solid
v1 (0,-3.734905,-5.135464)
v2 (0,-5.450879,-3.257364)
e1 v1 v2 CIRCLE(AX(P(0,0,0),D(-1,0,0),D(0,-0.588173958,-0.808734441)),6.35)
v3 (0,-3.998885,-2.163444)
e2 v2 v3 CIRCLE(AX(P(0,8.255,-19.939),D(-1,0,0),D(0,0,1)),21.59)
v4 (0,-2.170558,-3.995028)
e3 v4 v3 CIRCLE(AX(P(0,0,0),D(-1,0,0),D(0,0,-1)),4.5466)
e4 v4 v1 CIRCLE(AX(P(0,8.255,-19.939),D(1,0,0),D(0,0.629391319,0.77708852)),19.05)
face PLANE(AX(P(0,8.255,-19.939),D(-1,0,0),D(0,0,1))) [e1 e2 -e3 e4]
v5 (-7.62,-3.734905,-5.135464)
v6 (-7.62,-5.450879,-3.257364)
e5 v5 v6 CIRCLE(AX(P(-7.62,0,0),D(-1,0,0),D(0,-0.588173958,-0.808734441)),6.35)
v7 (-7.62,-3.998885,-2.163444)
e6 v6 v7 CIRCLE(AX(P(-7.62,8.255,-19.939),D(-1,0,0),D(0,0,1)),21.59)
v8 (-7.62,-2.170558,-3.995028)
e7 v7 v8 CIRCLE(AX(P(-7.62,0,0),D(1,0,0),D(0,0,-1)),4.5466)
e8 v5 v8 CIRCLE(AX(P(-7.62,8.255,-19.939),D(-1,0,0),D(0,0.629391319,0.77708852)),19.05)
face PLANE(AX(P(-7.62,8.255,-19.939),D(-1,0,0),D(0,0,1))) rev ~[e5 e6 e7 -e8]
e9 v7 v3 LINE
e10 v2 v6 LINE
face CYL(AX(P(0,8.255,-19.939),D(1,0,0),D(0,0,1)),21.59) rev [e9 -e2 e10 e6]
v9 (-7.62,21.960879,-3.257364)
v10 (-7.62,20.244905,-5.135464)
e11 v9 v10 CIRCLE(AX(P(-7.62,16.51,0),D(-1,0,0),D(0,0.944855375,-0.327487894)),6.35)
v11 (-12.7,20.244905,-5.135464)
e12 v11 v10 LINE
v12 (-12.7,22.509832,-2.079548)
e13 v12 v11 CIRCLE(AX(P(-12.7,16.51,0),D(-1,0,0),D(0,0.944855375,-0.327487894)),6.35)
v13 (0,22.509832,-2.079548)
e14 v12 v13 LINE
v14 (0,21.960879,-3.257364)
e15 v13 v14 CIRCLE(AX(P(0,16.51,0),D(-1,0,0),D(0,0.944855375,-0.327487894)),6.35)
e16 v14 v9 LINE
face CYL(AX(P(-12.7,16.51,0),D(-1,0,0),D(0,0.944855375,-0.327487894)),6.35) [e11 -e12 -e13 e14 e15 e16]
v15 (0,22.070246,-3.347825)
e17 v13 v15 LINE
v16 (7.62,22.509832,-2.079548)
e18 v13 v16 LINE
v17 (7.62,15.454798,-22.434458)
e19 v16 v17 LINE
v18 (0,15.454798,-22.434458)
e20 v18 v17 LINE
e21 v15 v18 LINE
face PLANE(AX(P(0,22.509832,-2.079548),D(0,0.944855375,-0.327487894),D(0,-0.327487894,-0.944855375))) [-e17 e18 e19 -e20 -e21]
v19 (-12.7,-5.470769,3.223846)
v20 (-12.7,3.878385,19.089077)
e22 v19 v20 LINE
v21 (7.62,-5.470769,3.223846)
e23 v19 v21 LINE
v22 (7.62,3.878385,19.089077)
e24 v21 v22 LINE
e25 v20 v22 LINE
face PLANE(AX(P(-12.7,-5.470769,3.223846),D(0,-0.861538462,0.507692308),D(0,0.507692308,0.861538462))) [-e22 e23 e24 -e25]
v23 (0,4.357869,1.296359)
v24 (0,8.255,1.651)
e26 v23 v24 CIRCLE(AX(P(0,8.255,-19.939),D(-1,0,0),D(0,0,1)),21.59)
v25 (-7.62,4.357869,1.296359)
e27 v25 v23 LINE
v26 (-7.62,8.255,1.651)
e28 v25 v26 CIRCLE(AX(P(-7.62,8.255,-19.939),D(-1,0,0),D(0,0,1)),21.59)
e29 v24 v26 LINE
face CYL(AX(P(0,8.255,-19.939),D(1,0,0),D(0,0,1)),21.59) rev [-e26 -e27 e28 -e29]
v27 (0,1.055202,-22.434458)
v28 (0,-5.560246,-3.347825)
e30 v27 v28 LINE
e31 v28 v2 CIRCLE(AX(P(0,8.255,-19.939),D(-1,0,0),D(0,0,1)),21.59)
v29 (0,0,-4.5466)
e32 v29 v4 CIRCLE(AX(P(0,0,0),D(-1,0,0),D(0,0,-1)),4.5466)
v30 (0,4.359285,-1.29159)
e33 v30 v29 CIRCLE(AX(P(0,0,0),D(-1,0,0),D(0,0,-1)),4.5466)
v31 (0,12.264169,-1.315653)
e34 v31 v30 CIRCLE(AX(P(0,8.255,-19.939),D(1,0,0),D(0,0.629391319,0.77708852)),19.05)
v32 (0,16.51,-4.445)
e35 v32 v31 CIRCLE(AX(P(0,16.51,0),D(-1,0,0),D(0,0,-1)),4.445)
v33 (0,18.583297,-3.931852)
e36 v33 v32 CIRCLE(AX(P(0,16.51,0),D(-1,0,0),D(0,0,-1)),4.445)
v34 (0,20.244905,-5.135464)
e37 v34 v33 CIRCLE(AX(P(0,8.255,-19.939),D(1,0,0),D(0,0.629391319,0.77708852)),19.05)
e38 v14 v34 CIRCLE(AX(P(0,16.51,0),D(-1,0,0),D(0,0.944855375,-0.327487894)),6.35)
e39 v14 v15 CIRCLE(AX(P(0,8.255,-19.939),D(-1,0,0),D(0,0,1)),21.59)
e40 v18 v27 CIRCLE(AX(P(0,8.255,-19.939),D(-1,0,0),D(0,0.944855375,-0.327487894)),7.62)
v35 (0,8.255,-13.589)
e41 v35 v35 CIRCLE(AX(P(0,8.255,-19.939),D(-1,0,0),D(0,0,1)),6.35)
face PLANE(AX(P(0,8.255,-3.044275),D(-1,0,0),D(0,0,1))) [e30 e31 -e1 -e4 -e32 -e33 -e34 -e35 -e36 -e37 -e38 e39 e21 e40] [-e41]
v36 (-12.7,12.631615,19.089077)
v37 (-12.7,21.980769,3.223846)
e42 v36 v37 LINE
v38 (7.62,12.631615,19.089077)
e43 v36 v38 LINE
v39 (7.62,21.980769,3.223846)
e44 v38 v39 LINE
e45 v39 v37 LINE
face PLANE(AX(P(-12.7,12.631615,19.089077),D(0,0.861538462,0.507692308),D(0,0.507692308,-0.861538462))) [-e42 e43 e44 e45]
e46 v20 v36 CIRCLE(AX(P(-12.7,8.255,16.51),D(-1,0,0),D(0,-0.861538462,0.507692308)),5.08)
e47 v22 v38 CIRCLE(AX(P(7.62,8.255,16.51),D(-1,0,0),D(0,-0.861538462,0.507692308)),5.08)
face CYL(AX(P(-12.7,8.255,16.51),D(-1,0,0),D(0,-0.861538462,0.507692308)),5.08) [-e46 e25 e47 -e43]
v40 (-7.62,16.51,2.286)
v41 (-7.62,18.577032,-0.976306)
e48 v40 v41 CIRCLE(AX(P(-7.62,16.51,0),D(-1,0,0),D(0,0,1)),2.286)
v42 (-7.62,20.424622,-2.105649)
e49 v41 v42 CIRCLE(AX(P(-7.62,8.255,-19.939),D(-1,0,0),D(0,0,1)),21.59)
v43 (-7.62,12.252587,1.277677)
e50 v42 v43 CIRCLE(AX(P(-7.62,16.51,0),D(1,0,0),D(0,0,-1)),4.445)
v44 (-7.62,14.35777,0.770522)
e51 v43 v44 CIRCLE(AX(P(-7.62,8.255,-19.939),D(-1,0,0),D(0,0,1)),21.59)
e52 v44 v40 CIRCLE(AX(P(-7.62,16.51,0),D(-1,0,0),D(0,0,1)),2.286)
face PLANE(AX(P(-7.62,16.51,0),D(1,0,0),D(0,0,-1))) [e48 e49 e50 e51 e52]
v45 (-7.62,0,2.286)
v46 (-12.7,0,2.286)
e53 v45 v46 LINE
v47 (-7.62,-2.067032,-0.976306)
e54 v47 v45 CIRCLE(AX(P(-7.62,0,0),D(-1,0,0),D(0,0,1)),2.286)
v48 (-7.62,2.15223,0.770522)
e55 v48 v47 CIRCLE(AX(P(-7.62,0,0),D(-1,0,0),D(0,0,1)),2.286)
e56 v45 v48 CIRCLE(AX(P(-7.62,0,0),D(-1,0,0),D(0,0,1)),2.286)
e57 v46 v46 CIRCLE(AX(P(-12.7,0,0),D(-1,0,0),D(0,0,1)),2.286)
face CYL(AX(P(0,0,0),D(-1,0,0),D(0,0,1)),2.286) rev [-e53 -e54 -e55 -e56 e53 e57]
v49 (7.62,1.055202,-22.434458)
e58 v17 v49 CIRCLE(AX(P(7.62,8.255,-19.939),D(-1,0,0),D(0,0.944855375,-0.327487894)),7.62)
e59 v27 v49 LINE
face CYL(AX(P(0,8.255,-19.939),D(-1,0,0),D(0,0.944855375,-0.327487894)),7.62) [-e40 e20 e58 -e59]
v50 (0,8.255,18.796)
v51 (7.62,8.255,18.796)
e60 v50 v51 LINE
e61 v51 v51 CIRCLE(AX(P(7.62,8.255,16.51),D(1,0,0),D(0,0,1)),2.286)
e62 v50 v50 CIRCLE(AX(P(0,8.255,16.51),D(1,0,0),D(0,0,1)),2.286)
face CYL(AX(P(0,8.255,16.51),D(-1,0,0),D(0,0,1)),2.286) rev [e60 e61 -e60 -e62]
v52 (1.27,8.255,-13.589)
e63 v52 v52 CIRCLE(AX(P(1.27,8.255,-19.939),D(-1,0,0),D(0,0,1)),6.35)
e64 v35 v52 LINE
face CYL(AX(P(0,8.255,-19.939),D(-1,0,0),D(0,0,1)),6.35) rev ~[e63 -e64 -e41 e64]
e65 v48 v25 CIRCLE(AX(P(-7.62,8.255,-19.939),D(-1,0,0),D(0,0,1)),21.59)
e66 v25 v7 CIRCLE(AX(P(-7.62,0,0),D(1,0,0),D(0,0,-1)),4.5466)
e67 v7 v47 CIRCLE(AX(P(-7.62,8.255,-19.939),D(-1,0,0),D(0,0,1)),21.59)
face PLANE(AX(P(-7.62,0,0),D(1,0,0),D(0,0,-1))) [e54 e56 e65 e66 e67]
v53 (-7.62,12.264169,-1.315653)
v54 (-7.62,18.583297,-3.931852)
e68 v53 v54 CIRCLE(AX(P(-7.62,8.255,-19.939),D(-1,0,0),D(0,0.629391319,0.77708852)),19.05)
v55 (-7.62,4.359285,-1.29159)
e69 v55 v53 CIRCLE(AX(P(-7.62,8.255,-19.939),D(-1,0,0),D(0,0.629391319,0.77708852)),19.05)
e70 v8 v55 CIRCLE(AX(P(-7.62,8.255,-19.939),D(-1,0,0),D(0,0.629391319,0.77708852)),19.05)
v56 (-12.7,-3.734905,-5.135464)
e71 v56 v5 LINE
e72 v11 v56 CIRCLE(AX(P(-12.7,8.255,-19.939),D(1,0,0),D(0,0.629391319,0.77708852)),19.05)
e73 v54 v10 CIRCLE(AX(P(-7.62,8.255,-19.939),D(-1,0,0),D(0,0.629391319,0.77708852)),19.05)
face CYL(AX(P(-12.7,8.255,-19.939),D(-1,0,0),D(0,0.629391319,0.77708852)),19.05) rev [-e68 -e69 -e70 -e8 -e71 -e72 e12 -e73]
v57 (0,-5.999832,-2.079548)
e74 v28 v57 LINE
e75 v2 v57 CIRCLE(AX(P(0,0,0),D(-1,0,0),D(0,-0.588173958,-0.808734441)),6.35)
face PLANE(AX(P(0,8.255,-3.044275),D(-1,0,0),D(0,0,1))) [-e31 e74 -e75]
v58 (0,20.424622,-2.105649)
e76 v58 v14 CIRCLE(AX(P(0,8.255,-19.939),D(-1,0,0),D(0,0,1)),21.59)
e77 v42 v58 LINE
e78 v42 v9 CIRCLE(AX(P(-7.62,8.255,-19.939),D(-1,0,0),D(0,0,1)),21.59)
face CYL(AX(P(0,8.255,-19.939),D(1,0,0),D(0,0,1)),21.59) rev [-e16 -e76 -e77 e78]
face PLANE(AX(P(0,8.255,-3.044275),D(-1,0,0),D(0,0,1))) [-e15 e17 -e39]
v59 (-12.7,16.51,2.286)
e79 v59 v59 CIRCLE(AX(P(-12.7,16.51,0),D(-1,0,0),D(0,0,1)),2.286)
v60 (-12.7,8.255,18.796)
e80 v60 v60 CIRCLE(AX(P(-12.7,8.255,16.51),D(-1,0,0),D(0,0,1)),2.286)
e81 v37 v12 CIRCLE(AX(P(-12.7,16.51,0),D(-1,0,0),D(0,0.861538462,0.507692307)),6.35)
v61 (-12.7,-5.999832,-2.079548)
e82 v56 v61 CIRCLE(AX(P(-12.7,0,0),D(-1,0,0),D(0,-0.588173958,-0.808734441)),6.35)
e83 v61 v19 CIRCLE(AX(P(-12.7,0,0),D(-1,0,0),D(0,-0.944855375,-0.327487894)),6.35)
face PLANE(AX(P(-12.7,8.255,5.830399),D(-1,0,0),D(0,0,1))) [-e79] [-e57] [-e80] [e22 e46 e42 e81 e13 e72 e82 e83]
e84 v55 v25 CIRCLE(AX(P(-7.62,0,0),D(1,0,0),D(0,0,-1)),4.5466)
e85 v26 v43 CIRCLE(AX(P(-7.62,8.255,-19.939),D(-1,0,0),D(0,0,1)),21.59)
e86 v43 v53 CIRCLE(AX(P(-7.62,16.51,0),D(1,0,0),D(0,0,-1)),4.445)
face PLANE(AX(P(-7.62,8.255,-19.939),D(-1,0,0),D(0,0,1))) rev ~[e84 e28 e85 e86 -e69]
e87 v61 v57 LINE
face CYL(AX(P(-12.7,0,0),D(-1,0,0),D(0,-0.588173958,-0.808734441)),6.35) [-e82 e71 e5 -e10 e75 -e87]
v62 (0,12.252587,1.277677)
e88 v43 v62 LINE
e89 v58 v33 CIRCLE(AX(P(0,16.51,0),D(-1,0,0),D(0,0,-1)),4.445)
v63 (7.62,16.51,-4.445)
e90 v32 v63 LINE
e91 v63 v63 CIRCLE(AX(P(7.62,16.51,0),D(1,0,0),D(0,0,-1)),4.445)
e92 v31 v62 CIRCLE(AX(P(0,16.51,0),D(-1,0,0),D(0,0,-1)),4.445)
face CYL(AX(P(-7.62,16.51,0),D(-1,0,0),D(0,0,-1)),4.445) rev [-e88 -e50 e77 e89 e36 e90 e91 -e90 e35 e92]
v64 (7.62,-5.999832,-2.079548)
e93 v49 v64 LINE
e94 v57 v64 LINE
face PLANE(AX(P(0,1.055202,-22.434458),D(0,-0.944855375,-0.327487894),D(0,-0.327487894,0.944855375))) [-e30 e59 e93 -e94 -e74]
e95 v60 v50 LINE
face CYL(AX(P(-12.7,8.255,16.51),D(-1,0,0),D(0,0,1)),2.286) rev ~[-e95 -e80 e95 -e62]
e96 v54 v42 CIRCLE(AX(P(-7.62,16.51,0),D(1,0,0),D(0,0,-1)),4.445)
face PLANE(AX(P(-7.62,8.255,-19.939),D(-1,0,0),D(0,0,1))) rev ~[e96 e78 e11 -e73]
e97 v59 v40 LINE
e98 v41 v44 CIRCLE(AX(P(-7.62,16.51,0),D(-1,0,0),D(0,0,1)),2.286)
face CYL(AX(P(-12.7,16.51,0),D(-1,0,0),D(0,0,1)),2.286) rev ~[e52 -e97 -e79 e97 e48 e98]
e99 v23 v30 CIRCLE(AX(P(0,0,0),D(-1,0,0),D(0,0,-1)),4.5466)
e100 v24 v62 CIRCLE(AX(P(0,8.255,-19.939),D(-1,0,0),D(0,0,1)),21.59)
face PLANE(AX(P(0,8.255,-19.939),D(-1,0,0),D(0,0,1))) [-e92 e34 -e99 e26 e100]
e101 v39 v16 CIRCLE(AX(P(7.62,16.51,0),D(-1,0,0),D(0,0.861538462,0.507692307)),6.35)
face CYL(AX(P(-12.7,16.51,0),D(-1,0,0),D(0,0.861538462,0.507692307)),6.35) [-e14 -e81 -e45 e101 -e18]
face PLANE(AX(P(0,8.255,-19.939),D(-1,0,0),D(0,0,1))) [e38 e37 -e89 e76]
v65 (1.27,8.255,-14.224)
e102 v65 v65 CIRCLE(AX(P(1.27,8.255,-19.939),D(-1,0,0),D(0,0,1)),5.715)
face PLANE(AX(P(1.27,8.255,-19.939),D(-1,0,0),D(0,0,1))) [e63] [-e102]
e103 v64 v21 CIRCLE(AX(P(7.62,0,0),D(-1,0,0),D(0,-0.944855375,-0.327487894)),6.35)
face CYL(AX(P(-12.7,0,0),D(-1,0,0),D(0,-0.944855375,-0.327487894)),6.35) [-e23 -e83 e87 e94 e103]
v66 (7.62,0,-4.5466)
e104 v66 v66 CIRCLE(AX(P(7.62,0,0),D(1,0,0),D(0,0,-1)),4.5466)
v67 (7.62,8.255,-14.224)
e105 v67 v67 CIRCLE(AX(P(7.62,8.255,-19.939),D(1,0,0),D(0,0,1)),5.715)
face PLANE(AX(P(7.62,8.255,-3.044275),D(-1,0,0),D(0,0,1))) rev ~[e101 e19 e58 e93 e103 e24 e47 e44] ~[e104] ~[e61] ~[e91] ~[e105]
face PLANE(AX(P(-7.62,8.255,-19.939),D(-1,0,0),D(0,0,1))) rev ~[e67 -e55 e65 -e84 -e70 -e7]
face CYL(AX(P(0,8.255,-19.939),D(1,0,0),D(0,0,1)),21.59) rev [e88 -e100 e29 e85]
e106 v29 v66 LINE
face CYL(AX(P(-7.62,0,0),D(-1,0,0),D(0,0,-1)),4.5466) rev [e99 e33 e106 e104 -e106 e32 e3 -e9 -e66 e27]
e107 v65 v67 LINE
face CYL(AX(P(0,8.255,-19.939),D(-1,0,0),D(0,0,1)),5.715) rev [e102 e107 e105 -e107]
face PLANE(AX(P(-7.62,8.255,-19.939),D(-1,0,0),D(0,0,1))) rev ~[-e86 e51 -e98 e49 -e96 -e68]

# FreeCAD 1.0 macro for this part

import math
import FreeCAD as App
import Part
import Sketcher
Q = App.Units.Quantity

doc = App.newDocument("Part")
body = doc.addObject("PartDesign::Body", "Body")

sketch1 = doc.addObject("Sketcher::SketchObject", "Sketch")
body.addObject(sketch1)
sketch1.AttachmentSupport = (doc.YZ_Plane, [""])
sketch1.MapMode = "FlatFace"
sketch1.addGeometry([
    Part.LineSegment(App.Vector(15.454798, -22.434458, 0), App.Vector(22.509832, -2.079548, 0)),
    Part.ArcOfCircle(Part.Circle(App.Vector(16.51, 0, 0), App.Vector(0, 0, 1), 6.35), math.radians(-19.116372), math.radians(30.510237)),
    Part.LineSegment(App.Vector(21.980769, 3.223846, 0), App.Vector(12.631615, 19.089077, 0)),
    Part.ArcOfCircle(Part.Circle(App.Vector(8.255, 16.51, 0), App.Vector(0, 0, 1), 5.08), math.radians(30.510237), math.radians(149.489763)),
    Part.LineSegment(App.Vector(3.878385, 19.089077, 0), App.Vector(-5.470769, 3.223846, 0)),
    Part.ArcOfCircle(Part.Circle(App.Vector(0, 0, 0), App.Vector(0, 0, 1), 6.35), math.radians(149.489763), math.radians(199.116372)),
    Part.LineSegment(App.Vector(-5.999832, -2.079548, 0), App.Vector(1.055202, -22.434458, 0)),
    Part.ArcOfCircle(Part.Circle(App.Vector(8.255, -19.939, 0), App.Vector(0, 0, 1), 7.62), math.radians(-160.883628), math.radians(-19.116372)),
    Part.Circle(App.Vector(0, 0, 0), App.Vector(0, 0, 1), 2.286),
    Part.Circle(App.Vector(8.255, -19.939, 0), App.Vector(0, 0, 1), 5.715),
    Part.Circle(App.Vector(8.255, 16.51, 0), App.Vector(0, 0, 1), 2.286),
    Part.Circle(App.Vector(16.51, 0, 0), App.Vector(0, 0, 1), 2.286),
], False)
sketch1.addConstraint([
    Sketcher.Constraint("Tangent", 0, 2, 1, 1),
    Sketcher.Constraint("Tangent", 1, 2, 2, 1),
    Sketcher.Constraint("Tangent", 2, 2, 3, 1),
    Sketcher.Constraint("Tangent", 3, 2, 4, 1),
    Sketcher.Constraint("Tangent", 4, 2, 5, 1),
    Sketcher.Constraint("Tangent", 5, 2, 6, 1),
    Sketcher.Constraint("Tangent", 6, 2, 7, 1),
    Sketcher.Constraint("Tangent", 7, 2, 0, 1),
    Sketcher.Constraint("Coincident", 5, 3, -1, 1),
    Sketcher.Constraint("Coincident", 8, 3, -1, 1),
    Sketcher.Constraint("Coincident", 9, 3, 7, 3),
    Sketcher.Constraint("Coincident", 10, 3, 3, 3),
    Sketcher.Constraint("Coincident", 11, 3, 1, 3),
    Sketcher.Constraint("Equal", 1, 5),
    Sketcher.Constraint("Equal", 8, 10),
    Sketcher.Constraint("Equal", 10, 11),
    Sketcher.Constraint("PointOnObject", 1, 3, -1),
    Sketcher.Constraint("Horizontal", 2, 2, 3, 2),
    Sketcher.Constraint("Horizontal", 0, 2, 5, 2),
    Sketcher.Constraint("Radius", 3, Q("0.2 in")),
    Sketcher.Constraint("Radius", 7, Q("0.3 in")),
    Sketcher.Constraint("Diameter", 8, Q("0.18 in")),
    Sketcher.Constraint("Diameter", 9, Q("0.45 in")),
    Sketcher.Constraint("Radius", 1, Q("0.25 in")),
    Sketcher.Constraint("DistanceX", -1, 1, 1, 3, Q("0.65 in")),
    Sketcher.Constraint("DistanceY", -1, 1, 3, 3, Q("0.65 in")),
    Sketcher.Constraint("DistanceY", 7, 3, -1, 1, Q("0.785 in")),
])
pad1 = doc.addObject("PartDesign::Pad", "Pad")
body.addObject(pad1)
pad1.Profile = sketch1
pad1.Length = Q("0.3 in")

sketch2 = doc.addObject("Sketcher::SketchObject", "Sketch001")
body.addObject(sketch2)
sketch2.AttachmentSupport = (doc.YZ_Plane, [""])
sketch2.MapMode = "FlatFace"
sketch2.AttachmentOffset = App.Placement(App.Vector(0, 0, -0.5 * 25.4), App.Rotation())
sketch2.addGeometry([
    Part.LineSegment(App.Vector(12.631615, 19.089077, 0), App.Vector(21.980769, 3.223846, 0)),
    Part.ArcOfCircle(Part.Circle(App.Vector(16.51, 0, 0), App.Vector(0, 0, 1), 6.35), math.radians(-19.116372), math.radians(30.510237)),
    Part.ArcOfCircle(Part.Circle(App.Vector(16.51, 0, 0), App.Vector(0, 0, 1), 6.35), math.radians(-53.972467), math.radians(-19.116372)),
    Part.ArcOfCircle(Part.Circle(App.Vector(8.255, -19.939, 0), App.Vector(0, 0, 1), 19.05), math.radians(50.994771), math.radians(129.005229)),
    Part.ArcOfCircle(Part.Circle(App.Vector(0, 0, 0), App.Vector(0, 0, 1), 6.35), math.radians(-160.883628), math.radians(-126.027533)),
    Part.ArcOfCircle(Part.Circle(App.Vector(0, 0, 0), App.Vector(0, 0, 1), 6.35), math.radians(149.489763), math.radians(199.116372)),
    Part.LineSegment(App.Vector(-5.470769, 3.223846, 0), App.Vector(3.878385, 19.089077, 0)),
    Part.ArcOfCircle(Part.Circle(App.Vector(8.255, 16.51, 0), App.Vector(0, 0, 1), 5.08), math.radians(30.510237), math.radians(149.489763)),
    Part.Circle(App.Vector(0, 0, 0), App.Vector(0, 0, 1), 2.286),
    Part.Circle(App.Vector(16.51, 0, 0), App.Vector(0, 0, 1), 2.286),
    Part.Circle(App.Vector(8.255, 16.51, 0), App.Vector(0, 0, 1), 2.286),
], False)
sketch2.addConstraint([
    Sketcher.Constraint("Tangent", 0, 2, 1, 2),
    Sketcher.Constraint("Tangent", 1, 1, 2, 2),
    Sketcher.Constraint("Coincident", 2, 1, 3, 1),
    Sketcher.Constraint("Coincident", 3, 2, 4, 2),
    Sketcher.Constraint("Tangent", 4, 1, 5, 2),
    Sketcher.Constraint("Tangent", 5, 1, 6, 1),
    Sketcher.Constraint("Tangent", 6, 2, 7, 2),
    Sketcher.Constraint("Tangent", 7, 1, 0, 1),
    Sketcher.Constraint("Coincident", 4, 3, -1, 1),
    Sketcher.Constraint("Coincident", 8, 3, -1, 1),
    Sketcher.Constraint("Coincident", 9, 3, 1, 3),
    Sketcher.Constraint("Coincident", 10, 3, 7, 3),
    Sketcher.Constraint("Equal", 1, 2),
    Sketcher.Constraint("Equal", 2, 4),
    Sketcher.Constraint("Equal", 4, 5),
    Sketcher.Constraint("Equal", 8, 9),
    Sketcher.Constraint("Equal", 9, 10),
    Sketcher.Constraint("PointOnObject", 1, 3, -1),
    Sketcher.Constraint("Horizontal", 2, 1, 3, 2),
    Sketcher.Constraint("Horizontal", 1, 1, 4, 1),
    Sketcher.Constraint("Horizontal", 0, 2, 5, 1),
    Sketcher.Constraint("Radius", 7, Q("0.2 in")),
    Sketcher.Constraint("Diameter", 8, Q("0.18 in")),
    Sketcher.Constraint("Radius", 1, Q("0.25 in")),
    Sketcher.Constraint("Radius", 3, Q("0.75 in")),
    Sketcher.Constraint("DistanceX", -1, 1, 1, 3, Q("0.65 in")),
    Sketcher.Constraint("DistanceY", -1, 1, 7, 3, Q("0.65 in")),
    Sketcher.Constraint("DistanceY", 3, 3, -1, 1, Q("0.785 in")),
    Sketcher.Constraint("DistanceX", -1, 1, 1, 1, Q("22.509832 mm")),
])
pad2 = doc.addObject("PartDesign::Pad", "Pad001")
body.addObject(pad2)
pad2.Profile = sketch2
pad2.Length = Q("0.5 in")

sketch3 = doc.addObject("Sketcher::SketchObject", "Sketch002")
body.addObject(sketch3)
sketch3.AttachmentSupport = (doc.YZ_Plane, [""])
sketch3.MapMode = "FlatFace"
sketch3.addGeometry(Part.Circle(App.Vector(8.255, -19.939, 0), App.Vector(0, 0, 1), 6.35), False)
sketch3.addConstraint([
    Sketcher.Constraint("Diameter", 0, Q("0.5 in")),
    Sketcher.Constraint("DistanceX", -1, 1, 0, 3, Q("0.325 in")),
    Sketcher.Constraint("DistanceY", 0, 3, -1, 1, Q("0.785 in")),
])
pocket1 = doc.addObject("PartDesign::Pocket", "Pocket")
body.addObject(pocket1)
pocket1.Profile = sketch3
pocket1.Length = Q("0.05 in")
pocket1.Reversed = True

sketch4 = doc.addObject("Sketcher::SketchObject", "Sketch003")
body.addObject(sketch4)
sketch4.AttachmentSupport = (doc.YZ_Plane, [""])
sketch4.MapMode = "FlatFace"
sketch4.addGeometry(Part.Circle(App.Vector(8.255, -19.939, 0), App.Vector(0, 0, 1), 21.59), False)
sketch4.addConstraint([
    Sketcher.Constraint("Diameter", 0, Q("1.7 in")),
    Sketcher.Constraint("DistanceX", -1, 1, 0, 3, Q("0.325 in")),
    Sketcher.Constraint("DistanceY", 0, 3, -1, 1, Q("0.785 in")),
])
pocket2 = doc.addObject("PartDesign::Pocket", "Pocket001")
body.addObject(pocket2)
pocket2.Profile = sketch4
pocket2.Length = Q("0.3 in")

sketch5 = doc.addObject("Sketcher::SketchObject", "Sketch004")
body.addObject(sketch5)
sketch5.AttachmentSupport = (doc.YZ_Plane, [""])
sketch5.MapMode = "FlatFace"
sketch5.AttachmentOffset = App.Placement(App.Vector(0, 0, -0.3 * 25.4), App.Rotation())
sketch5.addGeometry([
    Part.Circle(App.Vector(0, 0, 0), App.Vector(0, 0, 1), 4.5466),
    Part.Circle(App.Vector(16.51, 0, 0), App.Vector(0, 0, 1), 4.445),
], False)
sketch5.addConstraint([
    Sketcher.Constraint("Coincident", 0, 3, -1, 1),
    Sketcher.Constraint("PointOnObject", 1, 3, -1),
    Sketcher.Constraint("Diameter", 1, Q("0.35 in")),
    Sketcher.Constraint("Diameter", 0, Q("0.358 in")),
    Sketcher.Constraint("DistanceX", -1, 1, 1, 3, Q("0.65 in")),
])
pocket3 = doc.addObject("PartDesign::Pocket", "Pocket002")
body.addObject(pocket3)
pocket3.Profile = sketch5
pocket3.Length = Q("0.6 in")
pocket3.Reversed = True

doc.recompute()
